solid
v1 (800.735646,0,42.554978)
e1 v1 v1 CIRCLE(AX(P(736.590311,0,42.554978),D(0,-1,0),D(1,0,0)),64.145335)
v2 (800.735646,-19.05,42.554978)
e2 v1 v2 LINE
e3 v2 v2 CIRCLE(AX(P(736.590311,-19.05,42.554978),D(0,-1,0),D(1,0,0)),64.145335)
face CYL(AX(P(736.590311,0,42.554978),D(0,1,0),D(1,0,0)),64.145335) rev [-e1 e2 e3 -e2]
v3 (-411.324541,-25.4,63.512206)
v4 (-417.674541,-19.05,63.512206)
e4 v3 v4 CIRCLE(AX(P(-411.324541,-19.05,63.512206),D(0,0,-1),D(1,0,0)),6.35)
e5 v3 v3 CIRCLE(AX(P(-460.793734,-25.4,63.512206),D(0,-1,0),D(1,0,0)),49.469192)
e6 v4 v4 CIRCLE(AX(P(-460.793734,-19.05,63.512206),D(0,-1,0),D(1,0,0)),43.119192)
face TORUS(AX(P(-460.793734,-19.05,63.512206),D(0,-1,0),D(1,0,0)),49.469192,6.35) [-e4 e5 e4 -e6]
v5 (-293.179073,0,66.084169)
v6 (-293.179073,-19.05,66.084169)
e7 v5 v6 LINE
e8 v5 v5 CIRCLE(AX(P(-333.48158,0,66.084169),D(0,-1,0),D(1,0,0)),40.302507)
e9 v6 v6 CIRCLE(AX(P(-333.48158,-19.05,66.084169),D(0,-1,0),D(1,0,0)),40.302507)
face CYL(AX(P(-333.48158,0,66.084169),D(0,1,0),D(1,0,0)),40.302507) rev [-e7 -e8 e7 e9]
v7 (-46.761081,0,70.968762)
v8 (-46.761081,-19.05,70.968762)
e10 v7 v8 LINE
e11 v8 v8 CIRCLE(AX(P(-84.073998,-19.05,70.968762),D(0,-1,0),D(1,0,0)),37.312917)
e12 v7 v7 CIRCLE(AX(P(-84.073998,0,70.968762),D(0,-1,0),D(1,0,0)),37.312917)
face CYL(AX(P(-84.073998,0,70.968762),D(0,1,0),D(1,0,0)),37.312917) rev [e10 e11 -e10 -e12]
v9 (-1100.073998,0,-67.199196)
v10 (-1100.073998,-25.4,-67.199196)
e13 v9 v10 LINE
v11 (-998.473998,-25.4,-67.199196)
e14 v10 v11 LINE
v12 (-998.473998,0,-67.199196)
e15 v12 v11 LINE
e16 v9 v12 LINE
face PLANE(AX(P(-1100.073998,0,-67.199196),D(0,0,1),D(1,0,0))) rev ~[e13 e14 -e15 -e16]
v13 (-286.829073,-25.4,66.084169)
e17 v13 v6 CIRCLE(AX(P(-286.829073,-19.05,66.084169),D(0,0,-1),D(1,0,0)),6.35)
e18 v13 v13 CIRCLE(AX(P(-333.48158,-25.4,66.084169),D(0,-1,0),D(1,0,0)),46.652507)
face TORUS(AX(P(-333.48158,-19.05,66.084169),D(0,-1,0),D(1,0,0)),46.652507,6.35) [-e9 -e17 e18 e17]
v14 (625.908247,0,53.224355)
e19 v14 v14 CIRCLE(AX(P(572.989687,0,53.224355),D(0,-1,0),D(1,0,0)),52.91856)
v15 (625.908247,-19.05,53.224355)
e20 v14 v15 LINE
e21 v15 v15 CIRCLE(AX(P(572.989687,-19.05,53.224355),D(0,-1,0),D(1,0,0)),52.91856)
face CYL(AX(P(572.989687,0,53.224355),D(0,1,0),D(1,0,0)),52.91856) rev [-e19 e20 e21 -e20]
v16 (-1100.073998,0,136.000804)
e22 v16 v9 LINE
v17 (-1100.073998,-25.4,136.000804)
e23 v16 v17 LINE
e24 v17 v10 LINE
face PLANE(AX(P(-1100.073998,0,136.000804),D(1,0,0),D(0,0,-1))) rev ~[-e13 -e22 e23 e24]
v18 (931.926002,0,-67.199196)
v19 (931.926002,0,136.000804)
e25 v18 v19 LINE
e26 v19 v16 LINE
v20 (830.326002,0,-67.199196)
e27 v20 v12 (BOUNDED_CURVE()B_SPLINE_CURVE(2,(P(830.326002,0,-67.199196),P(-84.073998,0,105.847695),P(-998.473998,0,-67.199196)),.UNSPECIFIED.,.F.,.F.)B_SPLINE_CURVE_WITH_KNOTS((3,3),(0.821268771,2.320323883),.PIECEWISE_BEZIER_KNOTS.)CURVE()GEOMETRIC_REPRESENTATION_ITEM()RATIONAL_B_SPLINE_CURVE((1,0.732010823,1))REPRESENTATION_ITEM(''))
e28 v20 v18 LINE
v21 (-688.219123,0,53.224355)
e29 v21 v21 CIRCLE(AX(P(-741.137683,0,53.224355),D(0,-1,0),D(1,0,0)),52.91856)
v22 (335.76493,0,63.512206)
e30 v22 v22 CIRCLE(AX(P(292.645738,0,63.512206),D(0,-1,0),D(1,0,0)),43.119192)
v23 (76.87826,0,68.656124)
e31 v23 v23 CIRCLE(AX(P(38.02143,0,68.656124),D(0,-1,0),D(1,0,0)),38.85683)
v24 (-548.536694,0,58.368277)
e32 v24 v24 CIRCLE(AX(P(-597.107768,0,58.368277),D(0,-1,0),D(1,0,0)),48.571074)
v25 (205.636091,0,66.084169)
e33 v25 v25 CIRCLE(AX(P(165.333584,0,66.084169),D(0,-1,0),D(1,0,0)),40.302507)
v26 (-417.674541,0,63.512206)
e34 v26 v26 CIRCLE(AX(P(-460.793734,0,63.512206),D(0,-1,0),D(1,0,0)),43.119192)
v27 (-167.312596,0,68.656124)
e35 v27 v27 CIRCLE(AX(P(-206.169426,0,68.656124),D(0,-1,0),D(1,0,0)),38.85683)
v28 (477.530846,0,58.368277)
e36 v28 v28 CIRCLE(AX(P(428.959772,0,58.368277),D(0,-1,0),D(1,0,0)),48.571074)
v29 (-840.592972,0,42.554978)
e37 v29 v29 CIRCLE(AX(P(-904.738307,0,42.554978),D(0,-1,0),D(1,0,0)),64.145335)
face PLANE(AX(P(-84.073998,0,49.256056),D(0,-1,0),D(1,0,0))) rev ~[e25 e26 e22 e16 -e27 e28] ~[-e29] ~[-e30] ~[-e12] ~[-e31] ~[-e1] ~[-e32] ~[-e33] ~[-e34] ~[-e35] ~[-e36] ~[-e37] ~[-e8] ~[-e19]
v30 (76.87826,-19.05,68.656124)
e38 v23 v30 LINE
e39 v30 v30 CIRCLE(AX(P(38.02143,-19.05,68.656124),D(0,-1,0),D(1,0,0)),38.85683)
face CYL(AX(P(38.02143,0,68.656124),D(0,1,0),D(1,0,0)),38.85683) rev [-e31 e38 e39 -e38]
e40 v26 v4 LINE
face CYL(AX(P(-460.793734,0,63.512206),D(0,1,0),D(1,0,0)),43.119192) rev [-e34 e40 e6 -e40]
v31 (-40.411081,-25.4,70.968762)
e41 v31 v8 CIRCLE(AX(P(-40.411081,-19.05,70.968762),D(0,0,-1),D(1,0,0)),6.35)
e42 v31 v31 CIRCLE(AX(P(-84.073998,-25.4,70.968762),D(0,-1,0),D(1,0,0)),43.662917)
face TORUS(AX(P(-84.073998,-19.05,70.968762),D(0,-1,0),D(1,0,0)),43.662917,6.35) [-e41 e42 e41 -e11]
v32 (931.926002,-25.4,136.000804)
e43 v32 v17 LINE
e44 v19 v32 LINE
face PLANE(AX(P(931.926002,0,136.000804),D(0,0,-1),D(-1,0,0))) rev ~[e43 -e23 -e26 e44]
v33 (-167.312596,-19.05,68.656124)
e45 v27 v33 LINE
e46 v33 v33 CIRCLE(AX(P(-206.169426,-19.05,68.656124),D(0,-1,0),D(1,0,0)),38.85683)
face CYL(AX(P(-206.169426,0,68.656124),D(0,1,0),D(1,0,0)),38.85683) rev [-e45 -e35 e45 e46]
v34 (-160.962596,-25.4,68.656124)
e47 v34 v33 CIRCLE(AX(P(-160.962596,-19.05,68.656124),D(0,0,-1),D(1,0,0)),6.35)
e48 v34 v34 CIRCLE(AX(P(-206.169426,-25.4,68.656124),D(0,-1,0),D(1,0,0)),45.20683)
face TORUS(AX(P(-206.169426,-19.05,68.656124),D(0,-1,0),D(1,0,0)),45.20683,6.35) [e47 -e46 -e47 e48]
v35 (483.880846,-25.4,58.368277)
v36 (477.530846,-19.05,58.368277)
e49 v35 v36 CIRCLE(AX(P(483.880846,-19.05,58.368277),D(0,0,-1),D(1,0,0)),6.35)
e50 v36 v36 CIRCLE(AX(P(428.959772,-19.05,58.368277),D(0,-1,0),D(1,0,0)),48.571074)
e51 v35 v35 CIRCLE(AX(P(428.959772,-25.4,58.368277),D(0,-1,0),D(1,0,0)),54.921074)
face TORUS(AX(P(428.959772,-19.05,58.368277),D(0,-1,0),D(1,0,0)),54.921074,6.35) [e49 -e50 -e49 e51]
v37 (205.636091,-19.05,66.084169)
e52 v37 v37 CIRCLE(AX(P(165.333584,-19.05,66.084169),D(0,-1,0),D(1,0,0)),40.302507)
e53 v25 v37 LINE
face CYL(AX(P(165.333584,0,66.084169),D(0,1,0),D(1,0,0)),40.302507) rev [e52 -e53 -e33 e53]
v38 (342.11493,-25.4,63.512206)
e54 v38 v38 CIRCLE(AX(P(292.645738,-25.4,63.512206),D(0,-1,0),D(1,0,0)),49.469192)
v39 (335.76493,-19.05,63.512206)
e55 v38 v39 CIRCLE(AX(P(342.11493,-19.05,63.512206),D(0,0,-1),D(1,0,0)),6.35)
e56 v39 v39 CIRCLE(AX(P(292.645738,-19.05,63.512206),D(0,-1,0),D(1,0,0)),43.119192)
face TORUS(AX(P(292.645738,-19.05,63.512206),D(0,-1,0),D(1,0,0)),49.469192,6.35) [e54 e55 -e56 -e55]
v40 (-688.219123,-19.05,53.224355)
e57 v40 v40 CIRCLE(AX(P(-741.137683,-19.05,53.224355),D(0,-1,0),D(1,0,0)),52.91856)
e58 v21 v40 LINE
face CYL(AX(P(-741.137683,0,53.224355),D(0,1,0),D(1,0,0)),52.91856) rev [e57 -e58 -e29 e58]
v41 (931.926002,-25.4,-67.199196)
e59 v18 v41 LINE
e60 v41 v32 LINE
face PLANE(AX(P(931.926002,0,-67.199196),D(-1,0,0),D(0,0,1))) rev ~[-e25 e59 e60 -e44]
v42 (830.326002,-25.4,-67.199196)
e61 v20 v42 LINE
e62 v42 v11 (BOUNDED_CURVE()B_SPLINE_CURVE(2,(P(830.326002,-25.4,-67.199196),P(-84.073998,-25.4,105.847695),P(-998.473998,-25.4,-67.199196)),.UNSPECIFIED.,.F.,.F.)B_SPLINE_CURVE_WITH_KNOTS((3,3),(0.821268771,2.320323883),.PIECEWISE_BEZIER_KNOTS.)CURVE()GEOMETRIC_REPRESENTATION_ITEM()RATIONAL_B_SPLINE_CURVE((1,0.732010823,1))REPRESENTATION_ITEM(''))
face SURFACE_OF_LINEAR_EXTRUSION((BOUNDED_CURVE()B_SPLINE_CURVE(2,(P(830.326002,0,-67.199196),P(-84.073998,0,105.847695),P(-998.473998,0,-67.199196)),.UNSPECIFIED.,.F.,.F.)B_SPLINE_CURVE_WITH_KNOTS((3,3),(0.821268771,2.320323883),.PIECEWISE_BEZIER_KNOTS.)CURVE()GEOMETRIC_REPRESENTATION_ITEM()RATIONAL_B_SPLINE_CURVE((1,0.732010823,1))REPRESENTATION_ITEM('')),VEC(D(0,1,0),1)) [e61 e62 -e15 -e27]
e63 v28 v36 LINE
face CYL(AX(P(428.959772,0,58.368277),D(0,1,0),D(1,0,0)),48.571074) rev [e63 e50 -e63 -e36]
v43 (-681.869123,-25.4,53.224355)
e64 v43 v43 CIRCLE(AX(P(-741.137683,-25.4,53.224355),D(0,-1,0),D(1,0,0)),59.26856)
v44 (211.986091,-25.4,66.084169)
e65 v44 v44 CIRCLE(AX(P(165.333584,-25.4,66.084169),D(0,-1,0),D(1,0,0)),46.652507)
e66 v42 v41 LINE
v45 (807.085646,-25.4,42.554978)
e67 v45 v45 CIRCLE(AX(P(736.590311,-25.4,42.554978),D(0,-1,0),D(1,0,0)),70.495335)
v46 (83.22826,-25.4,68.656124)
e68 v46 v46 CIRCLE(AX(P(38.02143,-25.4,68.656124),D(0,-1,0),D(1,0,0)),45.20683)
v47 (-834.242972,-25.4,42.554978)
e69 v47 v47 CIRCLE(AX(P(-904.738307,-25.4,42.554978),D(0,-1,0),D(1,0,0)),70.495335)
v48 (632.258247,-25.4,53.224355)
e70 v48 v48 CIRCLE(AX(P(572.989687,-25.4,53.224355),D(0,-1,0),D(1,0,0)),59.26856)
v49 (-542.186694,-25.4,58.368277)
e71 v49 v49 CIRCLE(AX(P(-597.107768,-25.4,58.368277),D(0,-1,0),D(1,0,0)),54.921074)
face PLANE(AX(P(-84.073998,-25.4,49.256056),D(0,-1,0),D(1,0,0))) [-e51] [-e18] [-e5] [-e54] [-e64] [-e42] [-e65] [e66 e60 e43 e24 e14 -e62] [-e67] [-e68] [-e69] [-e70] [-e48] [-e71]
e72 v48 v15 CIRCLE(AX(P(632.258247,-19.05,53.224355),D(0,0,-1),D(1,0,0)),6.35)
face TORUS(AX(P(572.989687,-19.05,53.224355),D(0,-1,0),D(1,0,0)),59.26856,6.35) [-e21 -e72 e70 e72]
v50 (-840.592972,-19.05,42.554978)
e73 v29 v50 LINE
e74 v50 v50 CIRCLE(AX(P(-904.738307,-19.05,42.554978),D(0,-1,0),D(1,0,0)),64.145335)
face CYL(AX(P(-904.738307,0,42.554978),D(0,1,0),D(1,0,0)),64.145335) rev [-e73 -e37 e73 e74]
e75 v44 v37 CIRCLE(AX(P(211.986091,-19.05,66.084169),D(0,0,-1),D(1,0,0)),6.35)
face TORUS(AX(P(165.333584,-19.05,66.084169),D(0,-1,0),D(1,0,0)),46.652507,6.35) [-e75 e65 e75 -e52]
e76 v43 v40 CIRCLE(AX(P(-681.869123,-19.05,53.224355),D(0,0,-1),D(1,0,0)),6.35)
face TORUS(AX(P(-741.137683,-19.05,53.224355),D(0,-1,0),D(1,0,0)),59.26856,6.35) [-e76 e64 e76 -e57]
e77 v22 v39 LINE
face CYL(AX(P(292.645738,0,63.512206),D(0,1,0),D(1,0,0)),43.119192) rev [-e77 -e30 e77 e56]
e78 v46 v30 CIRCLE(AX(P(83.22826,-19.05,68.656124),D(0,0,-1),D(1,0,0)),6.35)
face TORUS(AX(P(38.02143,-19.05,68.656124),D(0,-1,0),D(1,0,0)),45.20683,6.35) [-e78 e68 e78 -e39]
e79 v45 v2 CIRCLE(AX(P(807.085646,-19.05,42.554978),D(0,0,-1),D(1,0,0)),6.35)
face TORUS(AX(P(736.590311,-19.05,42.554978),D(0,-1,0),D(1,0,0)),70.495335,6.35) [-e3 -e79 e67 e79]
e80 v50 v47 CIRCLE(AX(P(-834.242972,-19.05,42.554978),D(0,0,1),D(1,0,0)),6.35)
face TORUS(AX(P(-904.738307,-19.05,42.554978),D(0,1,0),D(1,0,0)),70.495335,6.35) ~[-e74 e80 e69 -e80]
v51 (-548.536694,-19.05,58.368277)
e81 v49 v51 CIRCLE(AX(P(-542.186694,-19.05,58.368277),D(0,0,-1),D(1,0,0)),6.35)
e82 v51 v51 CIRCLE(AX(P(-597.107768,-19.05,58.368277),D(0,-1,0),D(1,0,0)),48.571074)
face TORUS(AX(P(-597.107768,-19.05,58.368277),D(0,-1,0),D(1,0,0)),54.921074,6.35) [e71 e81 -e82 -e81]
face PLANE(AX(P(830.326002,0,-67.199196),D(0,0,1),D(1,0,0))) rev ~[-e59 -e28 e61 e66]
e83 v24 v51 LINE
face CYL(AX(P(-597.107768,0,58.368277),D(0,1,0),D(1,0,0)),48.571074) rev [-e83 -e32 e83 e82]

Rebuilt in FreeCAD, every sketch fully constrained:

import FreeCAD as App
import Part
import Sketcher

V = App.Vector
Q = App.Units.Quantity


def edges_at(feature, points):
    """Names of the edges that pass closest to the given points."""
    edges = feature.Shape.Edges
    near = lambda p: min(range(len(edges)), key=lambda i: edges[i].distToShape(Part.Vertex(*p))[0])
    return sorted({f"Edge{near(p) + 1}" for p in points})

doc = App.newDocument("Part")
body = doc.addObject("PartDesign::Body", "Body")

# Sketch on XZ plane
sketch1 = body.newObject("Sketcher::SketchObject", "Sketch")
sketch1.AttachmentSupport = (doc.getObject("XZ_Plane"), [""])
sketch1.MapMode = "FlatFace"
sketch1.addGeometry([
    Part.LineSegment(V(931.926002, 136.000804, 0), V(-1100.073998, 136.000804, 0)),  # 0
    Part.LineSegment(V(-1100.073998, 136.000804, 0), V(-1100.073998, -67.199196, 0)),  # 1
    Part.LineSegment(V(-1100.073998, -67.199196, 0), V(-998.473998, -67.199196, 0)),  # 2
    Part.BSplineCurve([V(830.326002, -67.199196, 0), V(-84.073998, 105.847695, 0), V(-998.473998, -67.199196, 0)], [3, 3], [0.821268771, 2.320323883], False, 2, [1, 0.732010823, 1], False),  # 3
    Part.LineSegment(V(830.326002, -67.199196, 0), V(931.926002, -67.199196, 0)),  # 4
    Part.LineSegment(V(931.926002, -67.199196, 0), V(931.926002, 136.000804, 0)),  # 5
    Part.Circle(V(-904.738307, 42.554978, 0), V(0, 0, 1), 64.145335),  # 6
    Part.Circle(V(736.590311, 42.554978, 0), V(0, 0, 1), 64.145335),  # 7
    Part.Circle(V(-741.137683, 53.224355, 0), V(0, 0, 1), 52.91856),  # 8
    Part.Circle(V(-597.107768, 58.368277, 0), V(0, 0, 1), 48.571074),  # 9
    Part.Circle(V(-460.793734, 63.512206, 0), V(0, 0, 1), 43.119192),  # 10
    Part.Circle(V(-333.48158, 66.084169, 0), V(0, 0, 1), 40.302507),  # 11
    Part.Circle(V(-206.169426, 68.656124, 0), V(0, 0, 1), 38.85683),  # 12
    Part.Circle(V(-84.073998, 70.968762, 0), V(0, 0, 1), 37.312917),  # 13
    Part.Circle(V(38.02143, 68.656124, 0), V(0, 0, 1), 38.85683),  # 14
    Part.Circle(V(165.333584, 66.084169, 0), V(0, 0, 1), 40.302507),  # 15
    Part.Circle(V(292.645738, 63.512206, 0), V(0, 0, 1), 43.119192),  # 16
    Part.Circle(V(428.959772, 58.368277, 0), V(0, 0, 1), 48.571074),  # 17
    Part.Circle(V(572.989687, 53.224355, 0), V(0, 0, 1), 52.91856),  # 18
], False)
sketch1.addConstraint([
    Sketcher.Constraint("Block", 3),
    Sketcher.Constraint("Coincident", 0, 2, 1, 1),
    Sketcher.Constraint("Coincident", 1, 2, 2, 1),
    Sketcher.Constraint("Coincident", 2, 2, 3, 2),
    Sketcher.Constraint("Coincident", 3, 1, 4, 1),
    Sketcher.Constraint("Coincident", 4, 2, 5, 1),
    Sketcher.Constraint("Coincident", 5, 2, 0, 1),
    Sketcher.Constraint("Horizontal", 0),
    Sketcher.Constraint("Vertical", 1),
    Sketcher.Constraint("Horizontal", 2),
    Sketcher.Constraint("Horizontal", 4),
    Sketcher.Constraint("Vertical", 5),
    Sketcher.Constraint("Equal", 6, 7),
    Sketcher.Constraint("Equal", 12, 14),
    Sketcher.Constraint("Equal", 11, 15),
    Sketcher.Constraint("Equal", 10, 16),
    Sketcher.Constraint("Equal", 9, 17),
    Sketcher.Constraint("Equal", 8, 18),
    Sketcher.Constraint("Horizontal", 6, 3, 7, 3),
    Sketcher.Constraint("Horizontal", 12, 3, 14, 3),
    Sketcher.Constraint("Horizontal", 11, 3, 15, 3),
    Sketcher.Constraint("Horizontal", 10, 3, 16, 3),
    Sketcher.Constraint("Horizontal", 9, 3, 17, 3),
    Sketcher.Constraint("Horizontal", 8, 3, 18, 3),
    Sketcher.Constraint("Equal", 2, 4),
    Sketcher.Constraint("DistanceX", 0, 2, 0, 1, Q("80 in")),
    Sketcher.Constraint("DistanceY", 1, 2, 1, 1, Q("8 in")),
    Sketcher.Constraint("DistanceX", 13, 3, -1, 1, Q("3.3099999 in")),
    Sketcher.Constraint("Diameter", 6, Q("128.29067 mm")),
    Sketcher.Constraint("Diameter", 8, Q("105.83712 mm")),
    Sketcher.Constraint("Diameter", 9, Q("97.142148 mm")),
    Sketcher.Constraint("Diameter", 12, Q("77.71366 mm")),
    Sketcher.Constraint("Diameter", 10, Q("86.238384 mm")),
    Sketcher.Constraint("Diameter", 11, Q("80.605014 mm")),
    Sketcher.Constraint("Diameter", 13, Q("74.625834 mm")),
    Sketcher.Constraint("DistanceY", 6, 3, 9, 3, Q("15.813299 mm")),
    Sketcher.Constraint("DistanceX", 9, 3, 14, 3, Q("635.129198 mm")),
    Sketcher.Constraint("DistanceY", 10, 3, 0, 2, Q("72.488598 mm")),
    Sketcher.Constraint("DistanceY", -1, 1, 6, 3, Q("42.554978 mm")),
    Sketcher.Constraint("DistanceX", -1, 1, 7, 3, Q("736.590311 mm")),
    Sketcher.Constraint("DistanceX", 9, 3, -1, 1, Q("597.107768 mm")),
    Sketcher.Constraint("DistanceX", 11, 3, -1, 1, Q("333.48158 mm")),
    Sketcher.Constraint("DistanceY", -1, 1, 11, 3, Q("66.084169 mm")),
    Sketcher.Constraint("DistanceX", -1, 1, 17, 3, Q("428.959772 mm")),
    Sketcher.Constraint("DistanceY", 8, 3, 9, 3, Q("5.143922 mm")),
    Sketcher.Constraint("DistanceX", 6, 3, 9, 3, Q("307.630539 mm")),
    Sketcher.Constraint("DistanceX", 8, 3, 10, 3, Q("280.34395 mm")),
    Sketcher.Constraint("DistanceY", 10, 3, 12, 3, Q("5.143918 mm")),
    Sketcher.Constraint("DistanceX", 9, 3, 12, 3, Q("390.938342 mm")),
    Sketcher.Constraint("DistanceX", 13, 3, 15, 3, Q("249.407582 mm")),
    Sketcher.Constraint("DistanceX", 16, 3, 18, 3, Q("280.34395 mm")),
    Sketcher.Constraint("DistanceX", 8, 3, -1, 1, Q("741.137683 mm")),
    Sketcher.Constraint("DistanceY", -1, 1, 13, 3, Q("70.968762 mm")),
    Sketcher.Constraint("DistanceX", -1, 1, 16, 3, Q("292.645738 mm")),
])
pad1 = body.newObject("PartDesign::Pad", "Pad")
pad1.Profile = sketch1
pad1.Length = Q("1 in")
doc.recompute()

fillet = body.newObject("PartDesign::Fillet", "Fillet")
fillet.Base = (pad1, edges_at(pad1, [(-968.884, -25.4, 42.555)]))
fillet.Radius = Q("0.25 in")
doc.recompute()

fillet2 = body.newObject("PartDesign::Fillet", "Fillet001")
fillet2.Base = (fillet, edges_at(fillet, [
    (-794.056, -25.4, 53.224),
    (-645.679, -25.4, 58.368),
    (-503.913, -25.4, 63.512),
    (-373.784, -25.4, 66.084),
    (-245.026, -25.4, 68.656),
    (-121.387, -25.4, 70.969),
    (-0.835, -25.4, 68.656),
    (125.031, -25.4, 66.084),
    (249.527, -25.4, 63.512),
    (380.389, -25.4, 58.368),
    (520.071, -25.4, 53.224),
    (672.445, -25.4, 42.555),
]))
fillet2.Radius = Q("0.25 in")

doc.recompute()
